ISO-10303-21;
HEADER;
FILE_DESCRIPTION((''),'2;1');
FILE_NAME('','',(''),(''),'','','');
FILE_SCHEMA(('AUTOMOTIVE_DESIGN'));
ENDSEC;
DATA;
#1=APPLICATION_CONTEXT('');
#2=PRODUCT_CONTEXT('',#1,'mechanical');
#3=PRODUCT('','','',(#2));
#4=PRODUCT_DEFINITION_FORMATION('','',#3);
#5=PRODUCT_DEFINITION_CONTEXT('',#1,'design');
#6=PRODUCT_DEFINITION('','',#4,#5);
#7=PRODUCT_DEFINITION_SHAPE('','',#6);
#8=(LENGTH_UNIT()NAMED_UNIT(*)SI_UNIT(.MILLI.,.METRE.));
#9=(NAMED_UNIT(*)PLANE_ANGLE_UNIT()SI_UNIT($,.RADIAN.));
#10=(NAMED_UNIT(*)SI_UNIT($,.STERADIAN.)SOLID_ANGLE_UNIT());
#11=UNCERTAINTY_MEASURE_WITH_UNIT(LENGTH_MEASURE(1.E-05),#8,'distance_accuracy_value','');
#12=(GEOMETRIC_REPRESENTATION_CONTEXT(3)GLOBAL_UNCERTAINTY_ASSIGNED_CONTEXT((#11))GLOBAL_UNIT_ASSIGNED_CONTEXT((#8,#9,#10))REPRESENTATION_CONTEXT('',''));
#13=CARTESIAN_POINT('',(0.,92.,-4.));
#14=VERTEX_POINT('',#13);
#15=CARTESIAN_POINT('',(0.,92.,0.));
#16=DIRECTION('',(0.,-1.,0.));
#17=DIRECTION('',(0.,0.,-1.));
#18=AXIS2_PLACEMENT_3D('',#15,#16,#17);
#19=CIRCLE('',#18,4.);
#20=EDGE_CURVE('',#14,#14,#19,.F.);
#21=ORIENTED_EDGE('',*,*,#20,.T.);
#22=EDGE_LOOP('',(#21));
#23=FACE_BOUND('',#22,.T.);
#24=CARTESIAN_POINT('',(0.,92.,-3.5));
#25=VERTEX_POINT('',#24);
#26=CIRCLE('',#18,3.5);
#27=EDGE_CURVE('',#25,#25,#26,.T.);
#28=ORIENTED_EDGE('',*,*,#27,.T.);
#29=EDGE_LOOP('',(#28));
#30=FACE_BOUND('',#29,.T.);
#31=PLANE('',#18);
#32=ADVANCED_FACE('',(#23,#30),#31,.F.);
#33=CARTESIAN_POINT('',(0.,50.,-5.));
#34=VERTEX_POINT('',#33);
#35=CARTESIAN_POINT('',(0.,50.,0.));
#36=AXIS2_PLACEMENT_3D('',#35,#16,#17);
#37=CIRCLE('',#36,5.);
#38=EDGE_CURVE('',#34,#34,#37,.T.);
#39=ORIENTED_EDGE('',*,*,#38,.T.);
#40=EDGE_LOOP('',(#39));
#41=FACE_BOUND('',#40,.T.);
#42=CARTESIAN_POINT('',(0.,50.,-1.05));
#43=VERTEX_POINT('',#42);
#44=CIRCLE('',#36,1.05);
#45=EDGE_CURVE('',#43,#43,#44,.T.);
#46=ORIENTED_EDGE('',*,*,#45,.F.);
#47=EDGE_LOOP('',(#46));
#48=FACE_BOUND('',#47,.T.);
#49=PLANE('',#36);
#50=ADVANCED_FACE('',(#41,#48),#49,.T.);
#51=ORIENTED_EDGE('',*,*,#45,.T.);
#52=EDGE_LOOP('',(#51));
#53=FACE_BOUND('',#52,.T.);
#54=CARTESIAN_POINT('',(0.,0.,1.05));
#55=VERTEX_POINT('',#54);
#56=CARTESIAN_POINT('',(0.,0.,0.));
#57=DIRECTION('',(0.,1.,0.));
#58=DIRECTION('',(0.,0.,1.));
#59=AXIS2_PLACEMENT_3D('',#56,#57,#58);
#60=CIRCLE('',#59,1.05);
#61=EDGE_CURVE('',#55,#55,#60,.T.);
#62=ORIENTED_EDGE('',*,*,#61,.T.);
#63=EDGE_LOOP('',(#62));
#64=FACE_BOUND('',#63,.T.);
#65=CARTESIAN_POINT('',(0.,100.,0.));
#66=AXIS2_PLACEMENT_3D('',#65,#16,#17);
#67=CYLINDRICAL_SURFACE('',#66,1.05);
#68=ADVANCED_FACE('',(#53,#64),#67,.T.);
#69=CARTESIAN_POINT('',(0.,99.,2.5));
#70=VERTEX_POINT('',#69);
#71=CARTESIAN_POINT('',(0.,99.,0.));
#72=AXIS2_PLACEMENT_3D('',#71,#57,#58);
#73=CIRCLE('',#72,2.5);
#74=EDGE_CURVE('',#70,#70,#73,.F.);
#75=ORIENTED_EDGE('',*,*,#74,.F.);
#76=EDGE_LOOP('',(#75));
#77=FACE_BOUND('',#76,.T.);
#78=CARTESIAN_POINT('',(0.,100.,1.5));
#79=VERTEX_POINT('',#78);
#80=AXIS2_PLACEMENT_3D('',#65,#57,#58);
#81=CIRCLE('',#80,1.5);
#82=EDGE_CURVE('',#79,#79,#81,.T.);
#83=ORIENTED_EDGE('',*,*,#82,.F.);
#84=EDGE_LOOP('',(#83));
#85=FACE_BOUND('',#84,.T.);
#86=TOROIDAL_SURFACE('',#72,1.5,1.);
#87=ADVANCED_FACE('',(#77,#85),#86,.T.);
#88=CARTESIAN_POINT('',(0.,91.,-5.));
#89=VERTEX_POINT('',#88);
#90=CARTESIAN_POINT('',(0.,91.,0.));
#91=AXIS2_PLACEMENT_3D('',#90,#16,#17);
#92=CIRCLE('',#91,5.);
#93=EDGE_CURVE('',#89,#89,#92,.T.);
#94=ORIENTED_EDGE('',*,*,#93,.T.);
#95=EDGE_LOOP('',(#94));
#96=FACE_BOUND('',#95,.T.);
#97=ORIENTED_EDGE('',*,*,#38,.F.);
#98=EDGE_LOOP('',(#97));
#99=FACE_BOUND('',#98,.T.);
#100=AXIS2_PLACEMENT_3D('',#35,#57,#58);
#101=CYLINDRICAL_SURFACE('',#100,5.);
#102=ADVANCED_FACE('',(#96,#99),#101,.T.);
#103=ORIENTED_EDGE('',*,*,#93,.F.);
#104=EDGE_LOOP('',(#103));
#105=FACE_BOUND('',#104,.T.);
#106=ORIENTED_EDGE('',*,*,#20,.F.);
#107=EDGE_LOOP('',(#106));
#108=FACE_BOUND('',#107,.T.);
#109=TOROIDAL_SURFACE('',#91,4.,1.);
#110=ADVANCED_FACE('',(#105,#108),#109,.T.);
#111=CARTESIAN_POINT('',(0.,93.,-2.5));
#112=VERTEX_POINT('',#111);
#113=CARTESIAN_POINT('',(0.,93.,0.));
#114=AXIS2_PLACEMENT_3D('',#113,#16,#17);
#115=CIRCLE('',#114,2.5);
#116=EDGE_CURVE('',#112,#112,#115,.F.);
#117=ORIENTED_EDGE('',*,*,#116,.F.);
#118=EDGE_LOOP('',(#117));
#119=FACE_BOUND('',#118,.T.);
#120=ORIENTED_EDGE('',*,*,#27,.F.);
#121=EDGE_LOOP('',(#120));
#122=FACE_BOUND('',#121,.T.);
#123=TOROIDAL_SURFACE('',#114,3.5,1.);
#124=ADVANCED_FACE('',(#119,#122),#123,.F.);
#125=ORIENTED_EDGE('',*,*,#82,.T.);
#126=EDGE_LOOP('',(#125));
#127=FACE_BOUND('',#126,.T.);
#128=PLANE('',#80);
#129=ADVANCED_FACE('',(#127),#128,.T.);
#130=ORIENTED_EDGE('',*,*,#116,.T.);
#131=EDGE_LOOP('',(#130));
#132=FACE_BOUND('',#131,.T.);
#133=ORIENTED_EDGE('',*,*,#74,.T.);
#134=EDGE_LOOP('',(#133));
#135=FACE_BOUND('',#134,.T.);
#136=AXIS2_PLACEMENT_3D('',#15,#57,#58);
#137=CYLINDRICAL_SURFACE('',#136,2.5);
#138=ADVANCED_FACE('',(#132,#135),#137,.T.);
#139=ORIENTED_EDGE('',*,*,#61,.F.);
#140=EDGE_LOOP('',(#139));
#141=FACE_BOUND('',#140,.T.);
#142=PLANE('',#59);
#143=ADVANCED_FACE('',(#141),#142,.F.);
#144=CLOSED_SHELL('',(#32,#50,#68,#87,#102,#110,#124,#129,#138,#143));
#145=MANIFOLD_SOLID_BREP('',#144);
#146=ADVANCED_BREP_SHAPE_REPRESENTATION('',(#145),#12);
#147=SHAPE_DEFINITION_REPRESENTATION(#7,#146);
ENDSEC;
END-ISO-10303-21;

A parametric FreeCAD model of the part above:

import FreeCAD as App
import Part
import Sketcher
from FreeCAD import Vector
Q = App.Units.Quantity


def edges_at(feature, points):
    """Names of the edges that pass closest to the given points."""
    edges = feature.Shape.Edges
    near = lambda p: min(range(len(edges)), key=lambda i: edges[i].distToShape(Part.Vertex(*p))[0])
    return sorted({f"Edge{near(p) + 1}" for p in points})

doc = App.newDocument("Part")
params = doc.addObject("Spreadsheet::Sheet", "Params")
for row, (alias, value) in enumerate([
    ("sketch1_diameter", "2.1 mm"),
    ("pad1_length", "100 mm"),
    ("sketch2_diameter", "5 mm"),
    ("pad2_length", "8 mm"),
    ("sketch3_diameter", "10 mm"),
    ("pad3_length", "42 mm"),
    ("fillet_radius", "1 mm"),
    ("fillet2_radius", "1 mm"),
    ("fillet3_radius", "1 mm"),
], start=1):
    params.set(f"A{row}", alias)
    params.set(f"B{row}", "=" + value)
    params.setAlias(f"B{row}", alias)

body = doc.addObject("PartDesign::Body", "Body")

# Sketch on XZ plane
sketch1 = body.newObject("Sketcher::SketchObject", "Sketch")
sketch1.AttachmentSupport = (doc.getObject("XZ_Plane"), [""])
sketch1.MapMode = "FlatFace"
sketch1.addGeometry(Part.Circle(Vector(0, 0, 0), Vector(0, 0, 1), 1.1), False)
sketch1.addConstraint([
    Sketcher.Constraint("Coincident", 0, 3, -1, 1),
    Sketcher.Constraint("Diameter", 0, Q("2.1 mm")),
])
sketch1.setExpression("Constraints[1]", "Params.sketch1_diameter")
pad1 = body.newObject("PartDesign::Pad", "Pad")
pad1.Profile = sketch1
pad1.setExpression("Length", "Params.pad1_length")
pad1.Reversed = True

# Sketch on XZ plane
sketch2 = body.newObject("Sketcher::SketchObject", "Sketch001")
sketch2.AttachmentSupport = (doc.getObject("XZ_Plane"), [""])
sketch2.MapMode = "FlatFace"
sketch2.AttachmentOffset = App.Placement(Vector(0, 0, -100), App.Rotation())
sketch2.addGeometry(Part.Circle(Vector(0, 0, 0), Vector(0, 0, 1), 2.5), False)
sketch2.addConstraint([
    Sketcher.Constraint("Coincident", 0, 3, -1, 1),
    Sketcher.Constraint("Diameter", 0, Q("5 mm")),
])
sketch2.setExpression("Constraints[1]", "Params.sketch2_diameter")
pad2 = body.newObject("PartDesign::Pad", "Pad001")
pad2.Profile = sketch2
pad2.setExpression("Length", "Params.pad2_length")

# Sketch on XZ plane
sketch3 = body.newObject("Sketcher::SketchObject", "Sketch002")
sketch3.AttachmentSupport = (doc.getObject("XZ_Plane"), [""])
sketch3.MapMode = "FlatFace"
sketch3.AttachmentOffset = App.Placement(Vector(0, 0, -92), App.Rotation())
sketch3.addGeometry(Part.Circle(Vector(0, 0, 0), Vector(0, 0, 1), 5), False)
sketch3.addConstraint([
    Sketcher.Constraint("Coincident", 0, 3, -1, 1),
    Sketcher.Constraint("Diameter", 0, Q("10 mm")),
])
sketch3.setExpression("Constraints[1]", "Params.sketch3_diameter")
pad3 = body.newObject("PartDesign::Pad", "Pad002")
pad3.Profile = sketch3
pad3.setExpression("Length", "Params.pad3_length")
doc.recompute()

fillet = body.newObject("PartDesign::Fillet", "Fillet")
fillet.Base = (pad3, edges_at(pad3, [(-2.5, 100, 0)]))
fillet.setExpression("Radius", "Params.fillet_radius")
doc.recompute()

fillet2 = body.newObject("PartDesign::Fillet", "Fillet001")
fillet2.Base = (fillet, edges_at(fillet, [(-5, 92, 0)]))
fillet2.setExpression("Radius", "Params.fillet2_radius")
doc.recompute()

fillet3 = body.newObject("PartDesign::Fillet", "Fillet002")
fillet3.Base = (fillet2, edges_at(fillet2, [(-2.5, 92, 0)]))
fillet3.setExpression("Radius", "Params.fillet3_radius")

doc.recompute()
